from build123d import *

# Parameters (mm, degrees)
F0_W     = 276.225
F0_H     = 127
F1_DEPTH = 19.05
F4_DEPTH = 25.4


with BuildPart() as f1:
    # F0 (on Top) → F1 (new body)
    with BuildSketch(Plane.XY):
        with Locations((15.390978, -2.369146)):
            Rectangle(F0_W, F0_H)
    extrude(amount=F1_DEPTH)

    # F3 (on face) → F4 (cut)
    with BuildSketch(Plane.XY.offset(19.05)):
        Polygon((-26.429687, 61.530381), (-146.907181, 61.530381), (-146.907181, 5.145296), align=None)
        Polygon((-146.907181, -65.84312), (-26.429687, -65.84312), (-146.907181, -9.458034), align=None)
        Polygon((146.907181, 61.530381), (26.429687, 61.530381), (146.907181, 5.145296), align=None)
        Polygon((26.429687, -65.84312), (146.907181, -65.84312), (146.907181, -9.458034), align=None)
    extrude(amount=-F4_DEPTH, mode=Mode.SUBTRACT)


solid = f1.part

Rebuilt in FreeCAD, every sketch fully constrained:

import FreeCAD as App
import Part
import Sketcher
from FreeCAD import Vector
Q = App.Units.Quantity

doc = App.newDocument("Part")
params = doc.addObject("Spreadsheet::Sheet", "Params")
for row, (alias, value) in enumerate([
    ("sketch1_height", "5 in"),
    ("sketch1_width", "10.875 in"),
    ("pad1_length", "0.75 in"),
    ("pocket1_length", "1 in"),
], start=1):
    params.set(f"A{row}", alias)
    params.set(f"B{row}", "=" + value)
    params.setAlias(f"B{row}", alias)

body = doc.addObject("PartDesign::Body", "Body")

# Sketch on XY plane
sketch1 = body.newObject("Sketcher::SketchObject", "Sketch")
sketch1.AttachmentSupport = (doc.getObject("XY_Plane"), [""])
sketch1.MapMode = "FlatFace"
sketch1.addGeometry([
    Part.LineSegment(Vector(-123, 61, 0), Vector(-123, -66, 0)),
    Part.LineSegment(Vector(-123, -66, 0), Vector(154, -66, 0)),
    Part.LineSegment(Vector(154, -66, 0), Vector(154, 61, 0)),
    Part.LineSegment(Vector(154, 61, 0), Vector(-123, 61, 0)),
], False)
sketch1.addConstraint([
    Sketcher.Constraint("Coincident", 0, 2, 1, 1),
    Sketcher.Constraint("Coincident", 1, 2, 2, 1),
    Sketcher.Constraint("Coincident", 2, 2, 3, 1),
    Sketcher.Constraint("Coincident", 3, 2, 0, 1),
    Sketcher.Constraint("Vertical", 0),
    Sketcher.Constraint("Horizontal", 1),
    Sketcher.Constraint("Vertical", 2),
    Sketcher.Constraint("Horizontal", 3),
    Sketcher.Constraint("DistanceY", 0, 2, 0, 1, Q("5 in")),
    Sketcher.Constraint("DistanceX", 1, 1, 1, 2, Q("10.875 in")),
    Sketcher.Constraint("DistanceX", 0, 2, -1, 1, 122.721522),
    Sketcher.Constraint("DistanceY", 0, 2, -1, 1, 65.869146),
])
sketch1.setExpression("Constraints[8]", "Params.sketch1_height")
sketch1.setExpression("Constraints[9]", "Params.sketch1_width")
pad1 = body.newObject("PartDesign::Pad", "Pad")
pad1.Profile = sketch1
pad1.setExpression("Length", "Params.pad1_length")

# Sketch on XY plane
sketch2 = body.newObject("Sketcher::SketchObject", "Sketch001")
sketch2.AttachmentSupport = (doc.getObject("XY_Plane"), [""])
sketch2.MapMode = "FlatFace"
sketch2.AttachmentOffset = App.Placement(Vector(0, 0, 0.75 * 25.4), App.Rotation())
sketch2.addGeometry([
    Part.LineSegment(Vector(-26, 62, 0), Vector(-147, 62, 0)),  # 0
    Part.LineSegment(Vector(-147, 62, 0), Vector(-147, 5, 0)),  # 1
    Part.LineSegment(Vector(-147, 5, 0), Vector(-26, 62, 0)),  # 2
    Part.LineSegment(Vector(-147, -66, 0), Vector(-26, -66, 0)),  # 3
    Part.LineSegment(Vector(-26, -66, 0), Vector(-147, -9, 0)),  # 4
    Part.LineSegment(Vector(-147, -9, 0), Vector(-147, -66, 0)),  # 5
    Part.LineSegment(Vector(147, 62, 0), Vector(26, 62, 0)),  # 6
    Part.LineSegment(Vector(26, 62, 0), Vector(147, 5, 0)),  # 7
    Part.LineSegment(Vector(147, 5, 0), Vector(147, 62, 0)),  # 8
    Part.LineSegment(Vector(26, -66, 0), Vector(147, -66, 0)),  # 9
    Part.LineSegment(Vector(147, -66, 0), Vector(147, -9, 0)),  # 10
    Part.LineSegment(Vector(147, -9, 0), Vector(26, -66, 0)),  # 11
], False)
sketch2.addConstraint([
    Sketcher.Constraint("Coincident", 0, 2, 1, 1),
    Sketcher.Constraint("Coincident", 1, 2, 2, 1),
    Sketcher.Constraint("Coincident", 2, 2, 0, 1),
    Sketcher.Constraint("Coincident", 3, 2, 4, 1),
    Sketcher.Constraint("Coincident", 4, 2, 5, 1),
    Sketcher.Constraint("Coincident", 5, 2, 3, 1),
    Sketcher.Constraint("Coincident", 6, 2, 7, 1),
    Sketcher.Constraint("Coincident", 7, 2, 8, 1),
    Sketcher.Constraint("Coincident", 8, 2, 6, 1),
    Sketcher.Constraint("Coincident", 9, 2, 10, 1),
    Sketcher.Constraint("Coincident", 10, 2, 11, 1),
    Sketcher.Constraint("Coincident", 11, 2, 9, 1),
    Sketcher.Constraint("Horizontal", 0),
    Sketcher.Constraint("Vertical", 1),
    Sketcher.Constraint("Horizontal", 3),
    Sketcher.Constraint("Vertical", 5),
    Sketcher.Constraint("Horizontal", 6),
    Sketcher.Constraint("Vertical", 8),
    Sketcher.Constraint("Horizontal", 9),
    Sketcher.Constraint("Vertical", 10),
    Sketcher.Constraint("Symmetric", 2, 2, 6, 2, -2),
    Sketcher.Constraint("Symmetric", 1, 2, 7, 2, -2),
    Sketcher.Constraint("Symmetric", 5, 2, 9, 2, -2),
    Sketcher.Constraint("Parallel", 4, 7),
    Sketcher.Constraint("Parallel", 2, 11),
    Sketcher.Constraint("Horizontal", 4, 2, 10, 2),
    Sketcher.Constraint("Vertical", 2, 2, 3, 2),
    Sketcher.Constraint("Vertical", 1, 2, 4, 2),
    Sketcher.Constraint("DistanceY", 3, 2, 2, 2, 127.373501),
    Sketcher.Constraint("Distance", 4, 133.019188),
    Sketcher.Constraint("DistanceX", 0, 2, 0, 1, 120.477494),
    Sketcher.Constraint("DistanceX", 0, 2, -1, 1, 146.907181),
    Sketcher.Constraint("DistanceY", -1, 1, 0, 2, 61.530381),
])
pocket1 = body.newObject("PartDesign::Pocket", "Pocket")
pocket1.Profile = sketch2
pocket1.setExpression("Length", "Params.pocket1_length")

doc.recompute()
